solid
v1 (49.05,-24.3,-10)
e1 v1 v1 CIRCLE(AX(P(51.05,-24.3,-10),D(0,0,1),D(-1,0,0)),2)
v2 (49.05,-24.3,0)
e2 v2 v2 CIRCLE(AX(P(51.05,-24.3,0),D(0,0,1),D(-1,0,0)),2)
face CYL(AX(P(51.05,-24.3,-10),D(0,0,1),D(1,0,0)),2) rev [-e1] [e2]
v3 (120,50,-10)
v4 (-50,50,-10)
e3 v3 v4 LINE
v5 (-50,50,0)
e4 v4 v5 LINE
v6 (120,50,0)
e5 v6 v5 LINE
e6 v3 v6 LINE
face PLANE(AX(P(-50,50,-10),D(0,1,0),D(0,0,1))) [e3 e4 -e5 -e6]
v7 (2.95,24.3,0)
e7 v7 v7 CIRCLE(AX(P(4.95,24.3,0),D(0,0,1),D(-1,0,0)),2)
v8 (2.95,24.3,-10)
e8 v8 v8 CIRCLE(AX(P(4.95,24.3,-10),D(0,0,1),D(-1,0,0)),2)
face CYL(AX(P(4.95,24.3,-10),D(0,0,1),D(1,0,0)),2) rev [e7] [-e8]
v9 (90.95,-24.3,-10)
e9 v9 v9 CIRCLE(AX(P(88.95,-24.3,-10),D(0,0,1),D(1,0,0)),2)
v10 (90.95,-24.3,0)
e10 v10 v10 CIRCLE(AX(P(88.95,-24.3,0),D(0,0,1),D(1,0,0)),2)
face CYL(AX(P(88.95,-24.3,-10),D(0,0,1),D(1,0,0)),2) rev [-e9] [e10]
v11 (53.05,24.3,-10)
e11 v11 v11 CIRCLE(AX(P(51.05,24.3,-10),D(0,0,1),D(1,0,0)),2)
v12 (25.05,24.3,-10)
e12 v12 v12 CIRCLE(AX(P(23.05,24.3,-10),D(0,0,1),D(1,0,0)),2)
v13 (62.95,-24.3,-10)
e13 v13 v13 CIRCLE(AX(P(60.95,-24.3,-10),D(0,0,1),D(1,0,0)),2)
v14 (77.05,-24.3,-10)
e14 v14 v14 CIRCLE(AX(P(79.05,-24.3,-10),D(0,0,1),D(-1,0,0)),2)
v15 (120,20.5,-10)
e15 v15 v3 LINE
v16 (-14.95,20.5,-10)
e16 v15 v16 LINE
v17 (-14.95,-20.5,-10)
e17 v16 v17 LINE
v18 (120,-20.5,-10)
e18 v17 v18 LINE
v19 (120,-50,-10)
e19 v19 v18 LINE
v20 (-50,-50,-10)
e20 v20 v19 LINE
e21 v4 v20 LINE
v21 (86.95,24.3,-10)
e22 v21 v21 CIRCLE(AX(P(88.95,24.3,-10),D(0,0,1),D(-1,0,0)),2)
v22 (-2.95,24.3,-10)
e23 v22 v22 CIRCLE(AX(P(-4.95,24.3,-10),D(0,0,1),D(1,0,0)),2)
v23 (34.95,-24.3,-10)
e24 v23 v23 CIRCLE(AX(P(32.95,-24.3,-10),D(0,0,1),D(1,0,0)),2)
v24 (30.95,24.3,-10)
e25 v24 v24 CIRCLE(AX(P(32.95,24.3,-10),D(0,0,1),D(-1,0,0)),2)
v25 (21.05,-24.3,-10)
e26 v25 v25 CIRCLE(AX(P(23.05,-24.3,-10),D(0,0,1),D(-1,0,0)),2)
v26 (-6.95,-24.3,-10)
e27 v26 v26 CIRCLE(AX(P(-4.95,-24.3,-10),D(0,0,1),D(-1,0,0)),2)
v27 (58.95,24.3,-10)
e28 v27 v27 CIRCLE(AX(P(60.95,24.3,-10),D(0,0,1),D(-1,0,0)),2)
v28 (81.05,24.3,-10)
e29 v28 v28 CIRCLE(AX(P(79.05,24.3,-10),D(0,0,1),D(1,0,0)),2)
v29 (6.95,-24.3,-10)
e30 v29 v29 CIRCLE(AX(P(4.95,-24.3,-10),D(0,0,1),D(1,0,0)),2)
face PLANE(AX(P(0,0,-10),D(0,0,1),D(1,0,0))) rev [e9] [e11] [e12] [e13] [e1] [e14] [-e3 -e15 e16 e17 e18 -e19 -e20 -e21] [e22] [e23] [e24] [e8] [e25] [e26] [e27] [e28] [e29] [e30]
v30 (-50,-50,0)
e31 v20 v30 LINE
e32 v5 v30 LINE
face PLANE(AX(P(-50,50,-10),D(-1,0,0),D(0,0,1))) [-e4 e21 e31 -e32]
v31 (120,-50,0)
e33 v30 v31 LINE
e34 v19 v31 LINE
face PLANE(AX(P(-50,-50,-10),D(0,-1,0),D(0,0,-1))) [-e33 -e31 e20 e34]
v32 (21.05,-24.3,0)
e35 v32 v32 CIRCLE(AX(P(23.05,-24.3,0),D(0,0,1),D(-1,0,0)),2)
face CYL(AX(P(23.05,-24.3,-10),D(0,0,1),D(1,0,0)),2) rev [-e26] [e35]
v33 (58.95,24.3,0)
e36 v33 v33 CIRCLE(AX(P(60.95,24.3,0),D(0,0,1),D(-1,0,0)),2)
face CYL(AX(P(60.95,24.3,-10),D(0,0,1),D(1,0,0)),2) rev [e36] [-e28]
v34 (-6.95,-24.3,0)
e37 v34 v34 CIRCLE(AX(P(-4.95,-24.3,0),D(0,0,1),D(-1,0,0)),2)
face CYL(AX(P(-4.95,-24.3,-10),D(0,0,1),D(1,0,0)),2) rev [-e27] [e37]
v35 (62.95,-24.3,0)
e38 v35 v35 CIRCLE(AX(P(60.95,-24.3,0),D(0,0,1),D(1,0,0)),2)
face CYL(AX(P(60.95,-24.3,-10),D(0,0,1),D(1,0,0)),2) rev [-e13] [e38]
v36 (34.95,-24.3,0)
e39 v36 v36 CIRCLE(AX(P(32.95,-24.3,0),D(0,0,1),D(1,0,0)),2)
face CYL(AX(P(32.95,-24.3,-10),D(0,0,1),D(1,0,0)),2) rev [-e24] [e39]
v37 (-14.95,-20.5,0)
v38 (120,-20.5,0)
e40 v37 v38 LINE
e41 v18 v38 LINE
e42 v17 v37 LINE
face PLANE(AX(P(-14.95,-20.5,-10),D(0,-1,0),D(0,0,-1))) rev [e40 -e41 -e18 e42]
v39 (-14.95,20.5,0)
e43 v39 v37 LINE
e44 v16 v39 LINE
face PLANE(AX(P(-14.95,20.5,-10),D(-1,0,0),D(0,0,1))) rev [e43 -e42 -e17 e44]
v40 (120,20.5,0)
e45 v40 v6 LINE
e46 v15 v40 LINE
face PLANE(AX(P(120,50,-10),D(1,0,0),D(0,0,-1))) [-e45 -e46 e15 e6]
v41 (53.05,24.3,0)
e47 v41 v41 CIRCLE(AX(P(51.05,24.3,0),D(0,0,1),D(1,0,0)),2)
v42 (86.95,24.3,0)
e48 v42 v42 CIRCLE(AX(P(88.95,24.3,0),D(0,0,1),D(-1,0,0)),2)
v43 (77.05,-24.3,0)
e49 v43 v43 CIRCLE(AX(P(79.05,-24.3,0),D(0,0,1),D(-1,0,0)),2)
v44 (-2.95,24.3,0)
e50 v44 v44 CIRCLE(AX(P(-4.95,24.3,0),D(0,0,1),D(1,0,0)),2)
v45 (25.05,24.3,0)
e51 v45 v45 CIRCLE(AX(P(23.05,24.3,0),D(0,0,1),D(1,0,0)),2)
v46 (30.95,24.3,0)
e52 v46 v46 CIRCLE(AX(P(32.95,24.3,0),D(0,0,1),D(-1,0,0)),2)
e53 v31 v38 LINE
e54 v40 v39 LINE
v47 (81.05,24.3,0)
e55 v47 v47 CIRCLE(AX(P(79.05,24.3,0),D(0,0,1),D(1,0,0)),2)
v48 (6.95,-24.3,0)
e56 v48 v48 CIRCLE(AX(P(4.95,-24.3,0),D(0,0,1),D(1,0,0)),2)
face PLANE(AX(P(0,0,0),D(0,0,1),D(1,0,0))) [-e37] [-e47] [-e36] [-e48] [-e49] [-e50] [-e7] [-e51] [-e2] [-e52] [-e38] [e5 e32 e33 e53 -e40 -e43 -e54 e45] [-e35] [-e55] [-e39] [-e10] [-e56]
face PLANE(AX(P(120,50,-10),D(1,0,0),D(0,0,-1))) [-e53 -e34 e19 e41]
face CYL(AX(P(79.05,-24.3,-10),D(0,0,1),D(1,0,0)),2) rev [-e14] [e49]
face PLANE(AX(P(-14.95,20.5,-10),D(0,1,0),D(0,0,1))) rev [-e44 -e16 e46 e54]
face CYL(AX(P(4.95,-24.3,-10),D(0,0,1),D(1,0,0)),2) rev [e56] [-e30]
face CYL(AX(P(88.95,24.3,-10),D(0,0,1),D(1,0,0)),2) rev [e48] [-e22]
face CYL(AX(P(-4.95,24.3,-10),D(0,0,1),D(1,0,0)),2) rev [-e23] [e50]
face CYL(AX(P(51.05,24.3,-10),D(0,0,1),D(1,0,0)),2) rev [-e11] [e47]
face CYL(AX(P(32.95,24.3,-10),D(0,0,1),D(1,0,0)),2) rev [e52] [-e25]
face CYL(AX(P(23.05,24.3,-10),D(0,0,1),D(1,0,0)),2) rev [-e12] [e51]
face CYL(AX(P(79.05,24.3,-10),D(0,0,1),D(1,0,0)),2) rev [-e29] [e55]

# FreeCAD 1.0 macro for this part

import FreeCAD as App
import Part
import Sketcher
from FreeCAD import Vector

doc = App.newDocument("Part")
params = doc.addObject("Spreadsheet::Sheet", "Params")
for row, (alias, value) in enumerate([
    ("sketch1_width", "170 mm"),
    ("sketch1_height", "100 mm"),
    ("pad1_length", "10 mm"),
    ("sketch2_diameter", "4 mm"),
    ("linearpattern_pitch", "28 mm"),
    ("sketch3_height", "41 mm"),
    ("sketch3_width", "134.95 mm"),
], start=1):
    params.set(f"A{row}", alias)
    params.set(f"B{row}", "=" + value)
    params.setAlias(f"B{row}", alias)

body = doc.addObject("PartDesign::Body", "Body")

sketch1 = doc.addObject("Sketcher::SketchObject", "Sketch")
body.addObject(sketch1)
sketch1.AttachmentSupport = (doc.XY_Plane, [""])
sketch1.MapMode = "FlatFace"
sketch1.addGeometry(Part.LineSegment(Vector(-50, 50, 0), Vector(-50, -50, 0)), False)
sketch1.addGeometry(Part.LineSegment(Vector(-50, -50, 0), Vector(120, -50, 0)), False)
sketch1.addGeometry(Part.LineSegment(Vector(120, -50, 0), Vector(120, 50, 0)), False)
sketch1.addGeometry(Part.LineSegment(Vector(120, 50, 0), Vector(-50, 50, 0)), False)
sketch1.addConstraint(Sketcher.Constraint("Coincident", 0, 2, 1, 1))
sketch1.addConstraint(Sketcher.Constraint("Coincident", 1, 2, 2, 1))
sketch1.addConstraint(Sketcher.Constraint("Coincident", 2, 2, 3, 1))
sketch1.addConstraint(Sketcher.Constraint("Coincident", 3, 2, 0, 1))
sketch1.addConstraint(Sketcher.Constraint("Vertical", 0))
sketch1.addConstraint(Sketcher.Constraint("Horizontal", 1))
sketch1.addConstraint(Sketcher.Constraint("Vertical", 2))
sketch1.addConstraint(Sketcher.Constraint("Horizontal", 3))
sketch1.addConstraint(Sketcher.Constraint("DistanceX", 1, 1, 1, 2, 170.0))
sketch1.addConstraint(Sketcher.Constraint("DistanceY", 0, 2, 0, 1, 100.0))
sketch1.addConstraint(Sketcher.Constraint("DistanceX", 0, 2, -1, 1, 50.0))
sketch1.addConstraint(Sketcher.Constraint("DistanceY", 0, 2, -1, 1, 50.0))
sketch1.setExpression("Constraints[8]", "Params.sketch1_width")
sketch1.setExpression("Constraints[9]", "Params.sketch1_height")
pad1 = doc.addObject("PartDesign::Pad", "Pad")
body.addObject(pad1)
pad1.Profile = sketch1
pad1.setExpression("Length", "Params.pad1_length")
pad1.Reversed = True

sketch2 = doc.addObject("Sketcher::SketchObject", "Sketch001")
body.addObject(sketch2)
sketch2.AttachmentSupport = (doc.XY_Plane, [""])
sketch2.MapMode = "FlatFace"
sketch2.addGeometry(Part.Circle(Vector(4.95, -24.3, 0), Vector(0, 0, 1), 2), False)
sketch2.addGeometry(Part.Circle(Vector(-4.95, -24.3, 0), Vector(0, 0, 1), 2), False)
sketch2.addGeometry(Part.Circle(Vector(-4.95, 24.3, 0), Vector(0, 0, 1), 2), False)
sketch2.addGeometry(Part.Circle(Vector(4.95, 24.3, 0), Vector(0, 0, 1), 2), False)
sketch2.addConstraint(Sketcher.Constraint("Equal", 0, 1))
sketch2.addConstraint(Sketcher.Constraint("Equal", 1, 2))
sketch2.addConstraint(Sketcher.Constraint("Equal", 2, 3))
sketch2.addConstraint(Sketcher.Constraint("Symmetric", 0, 3, 2, 3, -1, 1))
sketch2.addConstraint(Sketcher.Constraint("Symmetric", 1, 3, 3, 3, -1, 1))
sketch2.addConstraint(Sketcher.Constraint("Symmetric", 0, 3, 1, 3, -2))
sketch2.addConstraint(Sketcher.Constraint("Diameter", 0, 4.0))
sketch2.addConstraint(Sketcher.Constraint("DistanceY", 0, 3, -1, 1, 24.3))
sketch2.addConstraint(Sketcher.Constraint("DistanceX", 1, 3, 0, 3, 9.9))
sketch2.setExpression("Constraints[6]", "Params.sketch2_diameter")
pocket1 = doc.addObject("PartDesign::Pocket", "Pocket")
body.addObject(pocket1)
pocket1.Profile = sketch2
pocket1.Type = "ThroughAll"
doc.recompute()

linearpattern = doc.addObject("PartDesign::LinearPattern", "LinearPattern")
body.addObject(linearpattern)
linearpattern.Originals = [pocket1]
linearpattern.Direction = (doc.X_Axis, [""])
linearpattern.Mode = "offset"
linearpattern.setExpression("Offset", "Params.linearpattern_pitch")
linearpattern.Occurrences = 4
body.Tip = linearpattern

sketch3 = doc.addObject("Sketcher::SketchObject", "Sketch002")
body.addObject(sketch3)
sketch3.AttachmentSupport = (doc.XY_Plane, [""])
sketch3.MapMode = "FlatFace"
sketch3.addGeometry(Part.LineSegment(Vector(-14.95, 20.5, 0), Vector(-14.95, -20.5, 0)), False)
sketch3.addGeometry(Part.LineSegment(Vector(-14.95, -20.5, 0), Vector(120, -20.5, 0)), False)
sketch3.addGeometry(Part.LineSegment(Vector(120, -20.5, 0), Vector(120, 20.5, 0)), False)
sketch3.addGeometry(Part.LineSegment(Vector(120, 20.5, 0), Vector(-14.95, 20.5, 0)), False)
sketch3.addConstraint(Sketcher.Constraint("Coincident", 0, 2, 1, 1))
sketch3.addConstraint(Sketcher.Constraint("Coincident", 1, 2, 2, 1))
sketch3.addConstraint(Sketcher.Constraint("Coincident", 2, 2, 3, 1))
sketch3.addConstraint(Sketcher.Constraint("Coincident", 3, 2, 0, 1))
sketch3.addConstraint(Sketcher.Constraint("Vertical", 0))
sketch3.addConstraint(Sketcher.Constraint("Horizontal", 1))
sketch3.addConstraint(Sketcher.Constraint("Vertical", 2))
sketch3.addConstraint(Sketcher.Constraint("Horizontal", 3))
sketch3.addConstraint(Sketcher.Constraint("DistanceY", 0, 2, 0, 1, 41.0))
sketch3.addConstraint(Sketcher.Constraint("DistanceX", -1, 1, 1, 2, 120.0))
sketch3.addConstraint(Sketcher.Constraint("DistanceX", 1, 1, 1, 2, 134.95))
sketch3.addConstraint(Sketcher.Constraint("DistanceY", 0, 2, -1, 1, 20.5))
sketch3.setExpression("Constraints[8]", "Params.sketch3_height")
sketch3.setExpression("Constraints[10]", "Params.sketch3_width")
pocket2 = doc.addObject("PartDesign::Pocket", "Pocket001")
body.addObject(pocket2)
pocket2.Profile = sketch3
pocket2.Type = "ThroughAll"

doc.recompute()
